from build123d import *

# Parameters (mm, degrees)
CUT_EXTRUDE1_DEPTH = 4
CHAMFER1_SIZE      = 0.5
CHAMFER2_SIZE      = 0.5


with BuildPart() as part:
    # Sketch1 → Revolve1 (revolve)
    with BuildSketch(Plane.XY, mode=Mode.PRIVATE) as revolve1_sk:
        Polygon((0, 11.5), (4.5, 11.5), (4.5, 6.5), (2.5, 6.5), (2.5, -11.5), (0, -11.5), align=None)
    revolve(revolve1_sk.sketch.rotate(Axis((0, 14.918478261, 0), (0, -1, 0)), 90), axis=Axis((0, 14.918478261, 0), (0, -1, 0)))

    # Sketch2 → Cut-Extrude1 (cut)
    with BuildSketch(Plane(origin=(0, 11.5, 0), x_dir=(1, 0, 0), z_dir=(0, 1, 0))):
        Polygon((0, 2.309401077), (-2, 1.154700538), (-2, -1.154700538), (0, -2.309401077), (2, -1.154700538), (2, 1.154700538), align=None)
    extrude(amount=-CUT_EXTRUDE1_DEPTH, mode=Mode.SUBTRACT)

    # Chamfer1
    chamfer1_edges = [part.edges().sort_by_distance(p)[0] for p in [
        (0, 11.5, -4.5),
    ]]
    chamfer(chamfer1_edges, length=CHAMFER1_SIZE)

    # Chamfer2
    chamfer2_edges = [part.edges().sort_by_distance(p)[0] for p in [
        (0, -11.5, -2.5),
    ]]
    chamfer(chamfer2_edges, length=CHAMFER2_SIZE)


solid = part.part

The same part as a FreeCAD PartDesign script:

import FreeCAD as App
import Part
import Sketcher
Q = App.Units.Quantity


def edges_at(feature, points):
    """Names of the edges that pass closest to the given points."""
    edges = feature.Shape.Edges
    near = lambda p: min(range(len(edges)), key=lambda i: edges[i].distToShape(Part.Vertex(*p))[0])
    return sorted({f"Edge{near(p) + 1}" for p in points})


def add_polygon(sketch, points):
    """Adds a closed chain of lines whose ends are joined by coincident constraints."""
    first, n = sketch.GeometryCount, len(points)
    for a, b in zip(points, points[1:] + points[:1]):
        sketch.addGeometry(Part.LineSegment(App.Vector(*a, 0), App.Vector(*b, 0)), False)
    for i in range(n):
        sketch.addConstraint(Sketcher.Constraint("Coincident", first + i, 2, first + (i + 1) % n, 1))

doc = App.newDocument("Part")
body = doc.addObject("PartDesign::Body", "Body")

# Sketch on XY plane
sketch1 = body.newObject("Sketcher::SketchObject", "Sketch")
sketch1.AttachmentSupport = (doc.getObject("XY_Plane"), [""])
sketch1.MapMode = "FlatFace"
add_polygon(sketch1, [(4.5, 11.5), (0, 11.5), (0, -11.5), (2.5, -11.5), (2.5, 6.5), (4.5, 6.5)])  # lines 0-5
sketch1.addConstraint(Sketcher.Constraint("Horizontal", 0))
sketch1.addConstraint(Sketcher.Constraint("Vertical", 1))
sketch1.addConstraint(Sketcher.Constraint("Horizontal", 2))
sketch1.addConstraint(Sketcher.Constraint("Vertical", 3))
sketch1.addConstraint(Sketcher.Constraint("Horizontal", 4))
sketch1.addConstraint(Sketcher.Constraint("Vertical", 5))
sketch1.addConstraint(Sketcher.Constraint("Symmetric", 0, 2, 1, 2, -1, 1))
sketch1.addConstraint(Sketcher.Constraint("DistanceX", 4, 1, 4, 2, 2.0))
sketch1.addConstraint(Sketcher.Constraint("DistanceY", 1, 2, 1, 1, 23.0))
sketch1.addConstraint(Sketcher.Constraint("DistanceY", 3, 1, 3, 2, 18.0))
sketch1.addConstraint(Sketcher.Constraint("DistanceX", 0, 2, 0, 1, 4.5))
revolution = body.newObject("PartDesign::Revolution", "Revolution")
revolution.Profile = sketch1
revolution.ReferenceAxis = (sketch1, ["V_Axis"])
revolution.Angle = 360

# Sketch on XZ plane
sketch2 = body.newObject("Sketcher::SketchObject", "Sketch001")
sketch2.AttachmentSupport = (doc.getObject("XZ_Plane"), [""])
sketch2.MapMode = "FlatFace"
sketch2.AttachmentOffset = App.Placement(App.Vector(0, 0, -11.5), App.Rotation())
add_polygon(sketch2, [(0, -2.3), (-2, -1.2), (-2, 1.2), (0, 2.3), (2, 1.2), (2, -1.2)])  # lines 0-5
sketch2.addConstraint(Sketcher.Constraint("Vertical", 1))
sketch2.addConstraint(Sketcher.Constraint("Vertical", 4))
sketch2.addConstraint(Sketcher.Constraint("Symmetric", 0, 2, 3, 2, -1, 1))
sketch2.addConstraint(Sketcher.Constraint("Symmetric", 2, 2, 5, 2, -1, 1))
sketch2.addConstraint(Sketcher.Constraint("PointOnObject", 2, 2, -2))
sketch2.addConstraint(Sketcher.Constraint("Parallel", 2, 5))
sketch2.addConstraint(Sketcher.Constraint("Horizontal", 1, 2, 3, 2))
sketch2.addConstraint(Sketcher.Constraint("Angle", 0, Q("150 deg")))
sketch2.addConstraint(Sketcher.Constraint("DistanceX", 0, 2, -1, 1, 2.0))
sketch2.addConstraint(Sketcher.Constraint("DistanceY", 1, 1, 1, 2, 2.309401))
pocket1 = body.newObject("PartDesign::Pocket", "Pocket")
pocket1.Profile = sketch2
pocket1.Length = 4
pocket1.Reversed = True
doc.recompute()

chamfer = body.newObject("PartDesign::Chamfer", "Chamfer")
chamfer.Base = (pocket1, edges_at(pocket1, [(0, 11.5, -4.5)]))
chamfer.Size = 0.5
doc.recompute()

chamfer2 = body.newObject("PartDesign::Chamfer", "Chamfer001")
chamfer2.Base = (chamfer, edges_at(chamfer, [(0, -11.5, -2.5)]))
chamfer2.Size = 0.5

doc.recompute()
